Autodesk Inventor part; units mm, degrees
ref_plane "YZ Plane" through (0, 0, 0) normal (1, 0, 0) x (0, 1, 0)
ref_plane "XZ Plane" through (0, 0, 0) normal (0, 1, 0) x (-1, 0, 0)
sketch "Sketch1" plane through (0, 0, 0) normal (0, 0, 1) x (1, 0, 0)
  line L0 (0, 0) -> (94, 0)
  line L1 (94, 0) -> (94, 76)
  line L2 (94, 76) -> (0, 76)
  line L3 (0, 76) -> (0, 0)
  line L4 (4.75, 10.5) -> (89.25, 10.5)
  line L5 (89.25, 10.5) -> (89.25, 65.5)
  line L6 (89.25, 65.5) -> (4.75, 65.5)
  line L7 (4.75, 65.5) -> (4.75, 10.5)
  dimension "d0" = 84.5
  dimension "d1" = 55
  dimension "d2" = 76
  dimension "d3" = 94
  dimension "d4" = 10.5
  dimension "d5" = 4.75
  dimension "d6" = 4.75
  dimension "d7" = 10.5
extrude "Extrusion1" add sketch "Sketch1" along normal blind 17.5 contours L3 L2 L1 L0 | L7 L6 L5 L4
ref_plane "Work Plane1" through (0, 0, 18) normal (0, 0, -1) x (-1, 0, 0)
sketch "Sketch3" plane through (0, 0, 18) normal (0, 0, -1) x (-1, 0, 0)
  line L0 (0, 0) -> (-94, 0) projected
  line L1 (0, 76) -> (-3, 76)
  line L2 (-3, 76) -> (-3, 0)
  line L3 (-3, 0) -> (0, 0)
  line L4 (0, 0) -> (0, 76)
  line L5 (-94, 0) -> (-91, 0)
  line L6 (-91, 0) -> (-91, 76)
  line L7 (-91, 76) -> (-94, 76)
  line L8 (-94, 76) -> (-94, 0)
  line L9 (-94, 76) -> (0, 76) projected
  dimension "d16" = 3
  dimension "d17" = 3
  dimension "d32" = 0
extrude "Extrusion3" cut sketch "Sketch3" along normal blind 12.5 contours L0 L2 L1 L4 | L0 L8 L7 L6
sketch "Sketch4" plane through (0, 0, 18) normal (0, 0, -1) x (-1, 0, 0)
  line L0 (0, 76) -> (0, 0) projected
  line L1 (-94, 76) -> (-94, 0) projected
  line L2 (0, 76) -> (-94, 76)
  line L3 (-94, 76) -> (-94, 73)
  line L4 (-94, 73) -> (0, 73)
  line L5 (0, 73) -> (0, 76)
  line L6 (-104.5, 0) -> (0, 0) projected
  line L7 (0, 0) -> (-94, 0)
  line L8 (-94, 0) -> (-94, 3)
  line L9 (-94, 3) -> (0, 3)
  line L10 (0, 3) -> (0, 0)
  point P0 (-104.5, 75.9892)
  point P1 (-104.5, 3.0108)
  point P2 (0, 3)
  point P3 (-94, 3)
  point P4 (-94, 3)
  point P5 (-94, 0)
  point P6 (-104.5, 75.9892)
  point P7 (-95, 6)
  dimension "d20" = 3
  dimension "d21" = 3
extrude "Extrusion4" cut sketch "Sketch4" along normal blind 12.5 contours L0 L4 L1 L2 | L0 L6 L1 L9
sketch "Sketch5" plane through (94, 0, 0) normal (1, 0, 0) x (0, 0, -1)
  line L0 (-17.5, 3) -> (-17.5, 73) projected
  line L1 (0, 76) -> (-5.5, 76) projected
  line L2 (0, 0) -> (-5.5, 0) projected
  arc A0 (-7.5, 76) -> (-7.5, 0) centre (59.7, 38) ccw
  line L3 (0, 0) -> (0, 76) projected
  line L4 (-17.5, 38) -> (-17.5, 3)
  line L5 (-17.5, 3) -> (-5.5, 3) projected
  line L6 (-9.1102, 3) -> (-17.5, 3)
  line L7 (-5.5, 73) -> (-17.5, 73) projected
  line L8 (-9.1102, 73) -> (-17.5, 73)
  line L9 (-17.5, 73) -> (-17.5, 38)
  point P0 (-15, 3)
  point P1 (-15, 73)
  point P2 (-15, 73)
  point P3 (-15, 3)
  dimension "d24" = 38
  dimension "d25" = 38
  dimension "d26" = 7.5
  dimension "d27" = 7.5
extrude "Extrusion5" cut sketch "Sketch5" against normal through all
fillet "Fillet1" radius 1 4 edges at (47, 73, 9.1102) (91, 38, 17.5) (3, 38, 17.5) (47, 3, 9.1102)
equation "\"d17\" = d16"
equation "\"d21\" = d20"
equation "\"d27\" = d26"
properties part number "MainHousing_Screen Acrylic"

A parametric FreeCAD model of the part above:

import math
import FreeCAD as App
import Part
import Sketcher


def edges_at(feature, points):
    """Names of the edges that pass closest to the given points."""
    edges = feature.Shape.Edges
    near = lambda p: min(range(len(edges)), key=lambda i: edges[i].distToShape(Part.Vertex(*p))[0])
    return sorted({f"Edge{near(p) + 1}" for p in points})


def add_polygon(sketch, points):
    """Adds a closed chain of lines whose ends are joined by coincident constraints."""
    first, n = sketch.GeometryCount, len(points)
    for a, b in zip(points, points[1:] + points[:1]):
        sketch.addGeometry(Part.LineSegment(App.Vector(*a, 0), App.Vector(*b, 0)), False)
    for i in range(n):
        sketch.addConstraint(Sketcher.Constraint("Coincident", first + i, 2, first + (i + 1) % n, 1))

doc = App.newDocument("Part")
body = doc.addObject("PartDesign::Body", "Body")

sketch1 = body.newObject("Sketcher::SketchObject", "Sketch")
sketch1.AttachmentSupport = (doc.getObject("XY_Plane"), [""])
sketch1.MapMode = "FlatFace"
add_polygon(sketch1, [(0, 76), (0, 0), (94, 0), (94, 76)])
sketch1.addConstraint([
    Sketcher.Constraint("Vertical", 0),
    Sketcher.Constraint("Horizontal", 1),
    Sketcher.Constraint("Vertical", 2),
    Sketcher.Constraint("Horizontal", 3),
    Sketcher.Constraint("Coincident", 0, 2, -1, 1),
    Sketcher.Constraint("DistanceX", 1, 1, 1, 2, 94.0),
    Sketcher.Constraint("DistanceY", 0, 2, 0, 1, 76.0),
])
pad1 = body.newObject("PartDesign::Pad", "Pad")
pad1.Profile = sketch1
pad1.Length = 17.5

sketch2 = body.newObject("Sketcher::SketchObject", "Sketch001")
sketch2.AttachmentSupport = (doc.getObject("XY_Plane"), [""])
sketch2.MapMode = "FlatFace"
sketch2.AttachmentOffset = App.Placement(App.Vector(0, 0, 18), App.Rotation())
add_polygon(sketch2, [(3, 0), (0, 0), (0, 76), (3, 76)])
add_polygon(sketch2, [(94, 0), (91, 0), (91, 76), (94, 76)])
sketch2.addConstraint([
    Sketcher.Constraint("Horizontal", 0),
    Sketcher.Constraint("Vertical", 1),
    Sketcher.Constraint("Horizontal", 2),
    Sketcher.Constraint("Vertical", 3),
    Sketcher.Constraint("Horizontal", 4),
    Sketcher.Constraint("Vertical", 5),
    Sketcher.Constraint("Horizontal", 6),
    Sketcher.Constraint("Vertical", 7),
    Sketcher.Constraint("Coincident", 0, 2, -1, 1),
    Sketcher.Constraint("PointOnObject", 4, 2, -1),
    Sketcher.Constraint("Horizontal", 2, 2, 5, 2),
    Sketcher.Constraint("Equal", 2, 4),
    Sketcher.Constraint("DistanceX", 0, 2, 0, 1, 3.0),
    Sketcher.Constraint("DistanceY", 1, 1, 1, 2, 76.0),
    Sketcher.Constraint("DistanceX", -1, 1, 4, 2, 91.0),
])
pocket1 = body.newObject("PartDesign::Pocket", "Pocket")
pocket1.Profile = sketch2
pocket1.Length = 12.5

sketch3 = body.newObject("Sketcher::SketchObject", "Sketch002")
sketch3.AttachmentSupport = (doc.getObject("XY_Plane"), [""])
sketch3.MapMode = "FlatFace"
sketch3.AttachmentOffset = App.Placement(App.Vector(0, 0, 18), App.Rotation())
add_polygon(sketch3, [(0, 73), (0, 76), (94, 76), (94, 73)])
add_polygon(sketch3, [(0, 0), (0, 3), (94, 3), (94, 0)])
sketch3.addConstraint([
    Sketcher.Constraint("Vertical", 0),
    Sketcher.Constraint("Horizontal", 1),
    Sketcher.Constraint("Vertical", 2),
    Sketcher.Constraint("Horizontal", 3),
    Sketcher.Constraint("Vertical", 4),
    Sketcher.Constraint("Horizontal", 5),
    Sketcher.Constraint("Vertical", 6),
    Sketcher.Constraint("Horizontal", 7),
    Sketcher.Constraint("Coincident", 7, 2, -1, 1),
    Sketcher.Constraint("PointOnObject", 0, 2, -2),
    Sketcher.Constraint("Vertical", 2, 2, 5, 2),
    Sketcher.Constraint("Equal", 2, 4),
    Sketcher.Constraint("DistanceY", 0, 1, 0, 2, 3.0),
    Sketcher.Constraint("DistanceX", 1, 1, 1, 2, 94.0),
    Sketcher.Constraint("DistanceY", -1, 1, 0, 2, 76.0),
])
pocket2 = body.newObject("PartDesign::Pocket", "Pocket001")
pocket2.Profile = sketch3
pocket2.Length = 12.5

sketch4 = body.newObject("Sketcher::SketchObject", "Sketch003")
sketch4.AttachmentSupport = (doc.getObject("YZ_Plane"), [""])
sketch4.MapMode = "FlatFace"
sketch4.AttachmentOffset = App.Placement(App.Vector(0, 0, 94), App.Rotation())
sketch4.addGeometry([
    Part.LineSegment(App.Vector(73, 18, 0), App.Vector(38, 18, 0)),
    Part.ArcOfCircle(Part.Circle(App.Vector(38, -60, 0), App.Vector(0, 0, 1), 77), math.radians(63), math.radians(90)),
    Part.LineSegment(App.Vector(73, 9, 0), App.Vector(73, 18, 0)),
    Part.LineSegment(App.Vector(38, 18, 0), App.Vector(3, 18, 0)),
    Part.LineSegment(App.Vector(3, 18, 0), App.Vector(3, 9, 0)),
    Part.ArcOfCircle(Part.Circle(App.Vector(38, -60, 0), App.Vector(0, 0, 1), 77), math.radians(90), math.radians(117)),
], False)
sketch4.addConstraint([
    Sketcher.Constraint("Tangent", 0, 2, 1, 2),
    Sketcher.Constraint("Coincident", 1, 1, 2, 1),
    Sketcher.Constraint("Coincident", 2, 2, 0, 1),
    Sketcher.Constraint("Coincident", 3, 2, 4, 1),
    Sketcher.Constraint("Coincident", 4, 2, 5, 2),
    Sketcher.Constraint("Tangent", 5, 1, 3, 1),
    Sketcher.Constraint("Horizontal", 0),
    Sketcher.Constraint("Vertical", 2),
    Sketcher.Constraint("Horizontal", 3),
    Sketcher.Constraint("Vertical", 4),
    Sketcher.Constraint("Coincident", 5, 3, 1, 3),
    Sketcher.Constraint("Equal", 1, 5),
    Sketcher.Constraint("Horizontal", 1, 1, 4, 2),
    Sketcher.Constraint("DistanceX", -1, 1, 1, 3, 38.0),
    Sketcher.Constraint("Radius", 1, 77.2),
    Sketcher.Constraint("DistanceX", 0, 2, 0, 1, 35.0),
    Sketcher.Constraint("DistanceY", 1, 3, -1, 1, 59.7),
])
pocket3 = body.newObject("PartDesign::Pocket", "Pocket002")
pocket3.Profile = sketch4
pocket3.Type = "ThroughAll"
doc.recompute()

fillet = body.newObject("PartDesign::Fillet", "Fillet")
fillet.Base = (pocket3, edges_at(pocket3, [
    (47, 73, 9.11),
    (91, 38, 17.5),
    (3, 38, 17.5),
    (47, 3, 9.11),
]))
fillet.Radius = 1

doc.recompute()
